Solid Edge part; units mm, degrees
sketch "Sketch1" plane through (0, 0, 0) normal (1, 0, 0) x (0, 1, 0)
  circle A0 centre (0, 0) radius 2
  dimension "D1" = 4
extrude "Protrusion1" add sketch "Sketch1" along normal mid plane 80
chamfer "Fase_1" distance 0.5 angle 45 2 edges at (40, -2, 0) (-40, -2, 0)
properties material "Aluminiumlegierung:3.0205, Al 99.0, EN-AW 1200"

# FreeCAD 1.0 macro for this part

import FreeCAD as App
import Part
import Sketcher
from FreeCAD import Vector


def edges_at(feature, points):
    """Names of the edges that pass closest to the given points."""
    edges = feature.Shape.Edges
    near = lambda p: min(range(len(edges)), key=lambda i: edges[i].distToShape(Part.Vertex(*p))[0])
    return sorted({f"Edge{near(p) + 1}" for p in points})

doc = App.newDocument("Part")
params = doc.addObject("Spreadsheet::Sheet", "Params")
for row, (alias, value) in enumerate([
    ("sketch1_diameter", "4 mm"),
    ("pad1_length", "80 mm"),
    ("chamfer_size", "0.5 mm"),
], start=1):
    params.set(f"A{row}", alias)
    params.set(f"B{row}", "=" + value)
    params.setAlias(f"B{row}", alias)

body = doc.addObject("PartDesign::Body", "Body")

sketch1 = body.newObject("Sketcher::SketchObject", "Sketch")
sketch1.AttachmentSupport = (doc.getObject("YZ_Plane"), [""])
sketch1.MapMode = "FlatFace"
sketch1.addGeometry(Part.Circle(Vector(0, 0, 0), Vector(0, 0, 1), 2), False)
sketch1.addConstraint([
    Sketcher.Constraint("Coincident", 0, 3, -1, 1),
    Sketcher.Constraint("Diameter", 0, 4.0),
])
sketch1.setExpression("Constraints[1]", "Params.sketch1_diameter")
pad1 = body.newObject("PartDesign::Pad", "Pad")
pad1.Profile = sketch1
pad1.setExpression("Length", "Params.pad1_length")
pad1.Midplane = True
doc.recompute()

chamfer = body.newObject("PartDesign::Chamfer", "Chamfer")
chamfer.Base = (pad1, edges_at(pad1, [(40, -2, 0), (-40, -2, 0)]))
chamfer.setExpression("Size", "Params.chamfer_size")

doc.recompute()
